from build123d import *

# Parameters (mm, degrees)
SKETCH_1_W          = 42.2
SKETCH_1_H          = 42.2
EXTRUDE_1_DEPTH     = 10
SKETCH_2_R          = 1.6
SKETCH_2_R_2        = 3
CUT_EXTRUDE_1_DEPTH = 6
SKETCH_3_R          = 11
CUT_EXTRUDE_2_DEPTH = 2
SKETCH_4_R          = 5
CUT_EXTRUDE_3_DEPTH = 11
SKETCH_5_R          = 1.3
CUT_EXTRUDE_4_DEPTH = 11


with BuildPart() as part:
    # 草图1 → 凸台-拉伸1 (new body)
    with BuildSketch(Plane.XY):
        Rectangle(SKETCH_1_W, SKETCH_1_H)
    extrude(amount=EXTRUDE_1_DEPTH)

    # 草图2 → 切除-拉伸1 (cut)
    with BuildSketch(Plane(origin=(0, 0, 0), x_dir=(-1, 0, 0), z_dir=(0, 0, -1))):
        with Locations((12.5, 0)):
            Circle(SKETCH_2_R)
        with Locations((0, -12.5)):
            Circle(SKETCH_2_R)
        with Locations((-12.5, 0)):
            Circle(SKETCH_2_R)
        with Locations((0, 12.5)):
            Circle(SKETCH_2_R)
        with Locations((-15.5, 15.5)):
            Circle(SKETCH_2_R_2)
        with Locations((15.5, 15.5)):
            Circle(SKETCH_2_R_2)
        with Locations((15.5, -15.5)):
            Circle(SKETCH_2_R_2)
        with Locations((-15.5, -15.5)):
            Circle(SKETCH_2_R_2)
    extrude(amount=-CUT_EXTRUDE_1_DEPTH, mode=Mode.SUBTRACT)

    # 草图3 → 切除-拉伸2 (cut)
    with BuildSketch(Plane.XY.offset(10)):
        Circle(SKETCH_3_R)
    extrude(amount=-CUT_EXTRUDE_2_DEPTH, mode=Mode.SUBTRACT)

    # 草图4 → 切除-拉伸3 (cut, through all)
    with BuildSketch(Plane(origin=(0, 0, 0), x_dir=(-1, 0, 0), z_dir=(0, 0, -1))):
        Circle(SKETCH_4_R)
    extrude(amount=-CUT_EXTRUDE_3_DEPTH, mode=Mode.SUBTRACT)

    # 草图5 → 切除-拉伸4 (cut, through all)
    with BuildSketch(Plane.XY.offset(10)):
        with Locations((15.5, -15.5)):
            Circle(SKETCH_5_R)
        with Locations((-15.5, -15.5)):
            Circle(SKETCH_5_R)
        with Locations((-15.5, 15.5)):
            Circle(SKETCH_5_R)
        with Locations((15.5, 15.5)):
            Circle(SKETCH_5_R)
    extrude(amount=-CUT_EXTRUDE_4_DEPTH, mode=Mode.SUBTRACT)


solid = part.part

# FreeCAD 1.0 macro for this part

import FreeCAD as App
import Part
import Sketcher
from FreeCAD import Vector


def add_polygon(sketch, points):
    """Adds a closed chain of lines whose ends are joined by coincident constraints."""
    first, n = sketch.GeometryCount, len(points)
    for a, b in zip(points, points[1:] + points[:1]):
        sketch.addGeometry(Part.LineSegment(App.Vector(*a, 0), App.Vector(*b, 0)), False)
    for i in range(n):
        sketch.addConstraint(Sketcher.Constraint("Coincident", first + i, 2, first + (i + 1) % n, 1))

doc = App.newDocument("Part")
body = doc.addObject("PartDesign::Body", "Body")

# Sketch on XY plane
sketch1 = body.newObject("Sketcher::SketchObject", "Sketch")
sketch1.AttachmentSupport = (doc.getObject("XY_Plane"), [""])
sketch1.MapMode = "FlatFace"
add_polygon(sketch1, [(-21, 21), (-21, -21), (21, -21), (21, 21)])  # lines 0-3
sketch1.addConstraint(Sketcher.Constraint("Vertical", 0))
sketch1.addConstraint(Sketcher.Constraint("Horizontal", 1))
sketch1.addConstraint(Sketcher.Constraint("Vertical", 2))
sketch1.addConstraint(Sketcher.Constraint("Horizontal", 3))
sketch1.addConstraint(Sketcher.Constraint("Symmetric", 0, 2, 2, 2, -1, 1))
sketch1.addConstraint(Sketcher.Constraint("Equal", 3, 0))
sketch1.addConstraint(Sketcher.Constraint("DistanceX", 1, 1, 1, 2, 42.2))
pad1 = body.newObject("PartDesign::Pad", "Pad")
pad1.Profile = sketch1
pad1.Length = 10

# Sketch on XY plane
sketch2 = body.newObject("Sketcher::SketchObject", "Sketch001")
sketch2.AttachmentSupport = (doc.getObject("XY_Plane"), [""])
sketch2.MapMode = "FlatFace"
sketch2.addGeometry(Part.Circle(Vector(-12.5, 0, 0), Vector(0, 0, 1), 1.6), False)
sketch2.addGeometry(Part.Circle(Vector(0, -12.5, 0), Vector(0, 0, 1), 1.6), False)
sketch2.addGeometry(Part.Circle(Vector(12.5, 0, 0), Vector(0, 0, 1), 1.6), False)
sketch2.addGeometry(Part.Circle(Vector(0, 12.5, 0), Vector(0, 0, 1), 1.6), False)
sketch2.addGeometry(Part.Circle(Vector(15.5, 15.5, 0), Vector(0, 0, 1), 3), False)
sketch2.addGeometry(Part.Circle(Vector(-15.5, 15.5, 0), Vector(0, 0, 1), 3), False)
sketch2.addGeometry(Part.Circle(Vector(-15.5, -15.5, 0), Vector(0, 0, 1), 3), False)
sketch2.addGeometry(Part.Circle(Vector(15.5, -15.5, 0), Vector(0, 0, 1), 3), False)
sketch2.addConstraint(Sketcher.Constraint("Equal", 0, 1))
sketch2.addConstraint(Sketcher.Constraint("Equal", 1, 2))
sketch2.addConstraint(Sketcher.Constraint("Equal", 2, 3))
sketch2.addConstraint(Sketcher.Constraint("Equal", 4, 5))
sketch2.addConstraint(Sketcher.Constraint("Equal", 5, 6))
sketch2.addConstraint(Sketcher.Constraint("Equal", 6, 7))
sketch2.addConstraint(Sketcher.Constraint("Symmetric", 0, 3, 2, 3, -1, 1))
sketch2.addConstraint(Sketcher.Constraint("Symmetric", 1, 3, 3, 3, -1, 1))
sketch2.addConstraint(Sketcher.Constraint("Symmetric", 4, 3, 6, 3, -1, 1))
sketch2.addConstraint(Sketcher.Constraint("Symmetric", 5, 3, 7, 3, -1, 1))
sketch2.addConstraint(Sketcher.Constraint("Symmetric", 4, 3, 5, 3, -2))
sketch2.addConstraint(Sketcher.Constraint("PointOnObject", 0, 3, -1))
sketch2.addConstraint(Sketcher.Constraint("PointOnObject", 1, 3, -2))
sketch2.addConstraint(Sketcher.Constraint("Diameter", 4, 6.0))
sketch2.addConstraint(Sketcher.Constraint("Diameter", 0, 3.2))
sketch2.addConstraint(Sketcher.Constraint("DistanceX", 0, 3, 2, 3, 25.0))
sketch2.addConstraint(Sketcher.Constraint("DistanceY", 1, 3, 3, 3, 25.0))
sketch2.addConstraint(Sketcher.Constraint("DistanceX", 2, 3, 4, 3, 3.0))
sketch2.addConstraint(Sketcher.Constraint("DistanceY", 3, 3, 4, 3, 3.0))
pocket1 = body.newObject("PartDesign::Pocket", "Pocket")
pocket1.Profile = sketch2
pocket1.Length = 6
pocket1.Reversed = True

# Sketch on XY plane
sketch3 = body.newObject("Sketcher::SketchObject", "Sketch002")
sketch3.AttachmentSupport = (doc.getObject("XY_Plane"), [""])
sketch3.MapMode = "FlatFace"
sketch3.AttachmentOffset = App.Placement(Vector(0, 0, 10), App.Rotation())
sketch3.addGeometry(Part.Circle(Vector(0, 0, 0), Vector(0, 0, 1), 11), False)
sketch3.addConstraint(Sketcher.Constraint("Coincident", 0, 3, -1, 1))
sketch3.addConstraint(Sketcher.Constraint("Diameter", 0, 22.0))
pocket2 = body.newObject("PartDesign::Pocket", "Pocket001")
pocket2.Profile = sketch3
pocket2.Length = 2

# Sketch on XY plane
sketch4 = body.newObject("Sketcher::SketchObject", "Sketch003")
sketch4.AttachmentSupport = (doc.getObject("XY_Plane"), [""])
sketch4.MapMode = "FlatFace"
sketch4.addGeometry(Part.Circle(Vector(0, 0, 0), Vector(0, 0, 1), 5), False)
sketch4.addConstraint(Sketcher.Constraint("Coincident", 0, 3, -1, 1))
sketch4.addConstraint(Sketcher.Constraint("Diameter", 0, 10.0))
pocket3 = body.newObject("PartDesign::Pocket", "Pocket002")
pocket3.Profile = sketch4
pocket3.Type = "ThroughAll"
pocket3.Reversed = True

# Sketch on XY plane
sketch5 = body.newObject("Sketcher::SketchObject", "Sketch004")
sketch5.AttachmentSupport = (doc.getObject("XY_Plane"), [""])
sketch5.MapMode = "FlatFace"
sketch5.AttachmentOffset = App.Placement(Vector(0, 0, 10), App.Rotation())
sketch5.addGeometry(Part.Circle(Vector(15.5, -15.5, 0), Vector(0, 0, 1), 1.3), False)
sketch5.addGeometry(Part.Circle(Vector(-15.5, -15.5, 0), Vector(0, 0, 1), 1.3), False)
sketch5.addGeometry(Part.Circle(Vector(-15.5, 15.5, 0), Vector(0, 0, 1), 1.3), False)
sketch5.addGeometry(Part.Circle(Vector(15.5, 15.5, 0), Vector(0, 0, 1), 1.3), False)
sketch5.addConstraint(Sketcher.Constraint("Equal", 0, 1))
sketch5.addConstraint(Sketcher.Constraint("Equal", 1, 2))
sketch5.addConstraint(Sketcher.Constraint("Equal", 2, 3))
sketch5.addConstraint(Sketcher.Constraint("Symmetric", 0, 3, 2, 3, -1, 1))
sketch5.addConstraint(Sketcher.Constraint("Symmetric", 1, 3, 3, 3, -1, 1))
sketch5.addConstraint(Sketcher.Constraint("Symmetric", 0, 3, 1, 3, -2))
sketch5.addConstraint(Sketcher.Constraint("Diameter", 0, 2.6))
sketch5.addConstraint(Sketcher.Constraint("DistanceX", 1, 3, 0, 3, 31.0))
sketch5.addConstraint(Sketcher.Constraint("DistanceY", 1, 3, 2, 3, 31.0))
pocket4 = body.newObject("PartDesign::Pocket", "Pocket003")
pocket4.Profile = sketch5
pocket4.Type = "ThroughAll"

doc.recompute()
